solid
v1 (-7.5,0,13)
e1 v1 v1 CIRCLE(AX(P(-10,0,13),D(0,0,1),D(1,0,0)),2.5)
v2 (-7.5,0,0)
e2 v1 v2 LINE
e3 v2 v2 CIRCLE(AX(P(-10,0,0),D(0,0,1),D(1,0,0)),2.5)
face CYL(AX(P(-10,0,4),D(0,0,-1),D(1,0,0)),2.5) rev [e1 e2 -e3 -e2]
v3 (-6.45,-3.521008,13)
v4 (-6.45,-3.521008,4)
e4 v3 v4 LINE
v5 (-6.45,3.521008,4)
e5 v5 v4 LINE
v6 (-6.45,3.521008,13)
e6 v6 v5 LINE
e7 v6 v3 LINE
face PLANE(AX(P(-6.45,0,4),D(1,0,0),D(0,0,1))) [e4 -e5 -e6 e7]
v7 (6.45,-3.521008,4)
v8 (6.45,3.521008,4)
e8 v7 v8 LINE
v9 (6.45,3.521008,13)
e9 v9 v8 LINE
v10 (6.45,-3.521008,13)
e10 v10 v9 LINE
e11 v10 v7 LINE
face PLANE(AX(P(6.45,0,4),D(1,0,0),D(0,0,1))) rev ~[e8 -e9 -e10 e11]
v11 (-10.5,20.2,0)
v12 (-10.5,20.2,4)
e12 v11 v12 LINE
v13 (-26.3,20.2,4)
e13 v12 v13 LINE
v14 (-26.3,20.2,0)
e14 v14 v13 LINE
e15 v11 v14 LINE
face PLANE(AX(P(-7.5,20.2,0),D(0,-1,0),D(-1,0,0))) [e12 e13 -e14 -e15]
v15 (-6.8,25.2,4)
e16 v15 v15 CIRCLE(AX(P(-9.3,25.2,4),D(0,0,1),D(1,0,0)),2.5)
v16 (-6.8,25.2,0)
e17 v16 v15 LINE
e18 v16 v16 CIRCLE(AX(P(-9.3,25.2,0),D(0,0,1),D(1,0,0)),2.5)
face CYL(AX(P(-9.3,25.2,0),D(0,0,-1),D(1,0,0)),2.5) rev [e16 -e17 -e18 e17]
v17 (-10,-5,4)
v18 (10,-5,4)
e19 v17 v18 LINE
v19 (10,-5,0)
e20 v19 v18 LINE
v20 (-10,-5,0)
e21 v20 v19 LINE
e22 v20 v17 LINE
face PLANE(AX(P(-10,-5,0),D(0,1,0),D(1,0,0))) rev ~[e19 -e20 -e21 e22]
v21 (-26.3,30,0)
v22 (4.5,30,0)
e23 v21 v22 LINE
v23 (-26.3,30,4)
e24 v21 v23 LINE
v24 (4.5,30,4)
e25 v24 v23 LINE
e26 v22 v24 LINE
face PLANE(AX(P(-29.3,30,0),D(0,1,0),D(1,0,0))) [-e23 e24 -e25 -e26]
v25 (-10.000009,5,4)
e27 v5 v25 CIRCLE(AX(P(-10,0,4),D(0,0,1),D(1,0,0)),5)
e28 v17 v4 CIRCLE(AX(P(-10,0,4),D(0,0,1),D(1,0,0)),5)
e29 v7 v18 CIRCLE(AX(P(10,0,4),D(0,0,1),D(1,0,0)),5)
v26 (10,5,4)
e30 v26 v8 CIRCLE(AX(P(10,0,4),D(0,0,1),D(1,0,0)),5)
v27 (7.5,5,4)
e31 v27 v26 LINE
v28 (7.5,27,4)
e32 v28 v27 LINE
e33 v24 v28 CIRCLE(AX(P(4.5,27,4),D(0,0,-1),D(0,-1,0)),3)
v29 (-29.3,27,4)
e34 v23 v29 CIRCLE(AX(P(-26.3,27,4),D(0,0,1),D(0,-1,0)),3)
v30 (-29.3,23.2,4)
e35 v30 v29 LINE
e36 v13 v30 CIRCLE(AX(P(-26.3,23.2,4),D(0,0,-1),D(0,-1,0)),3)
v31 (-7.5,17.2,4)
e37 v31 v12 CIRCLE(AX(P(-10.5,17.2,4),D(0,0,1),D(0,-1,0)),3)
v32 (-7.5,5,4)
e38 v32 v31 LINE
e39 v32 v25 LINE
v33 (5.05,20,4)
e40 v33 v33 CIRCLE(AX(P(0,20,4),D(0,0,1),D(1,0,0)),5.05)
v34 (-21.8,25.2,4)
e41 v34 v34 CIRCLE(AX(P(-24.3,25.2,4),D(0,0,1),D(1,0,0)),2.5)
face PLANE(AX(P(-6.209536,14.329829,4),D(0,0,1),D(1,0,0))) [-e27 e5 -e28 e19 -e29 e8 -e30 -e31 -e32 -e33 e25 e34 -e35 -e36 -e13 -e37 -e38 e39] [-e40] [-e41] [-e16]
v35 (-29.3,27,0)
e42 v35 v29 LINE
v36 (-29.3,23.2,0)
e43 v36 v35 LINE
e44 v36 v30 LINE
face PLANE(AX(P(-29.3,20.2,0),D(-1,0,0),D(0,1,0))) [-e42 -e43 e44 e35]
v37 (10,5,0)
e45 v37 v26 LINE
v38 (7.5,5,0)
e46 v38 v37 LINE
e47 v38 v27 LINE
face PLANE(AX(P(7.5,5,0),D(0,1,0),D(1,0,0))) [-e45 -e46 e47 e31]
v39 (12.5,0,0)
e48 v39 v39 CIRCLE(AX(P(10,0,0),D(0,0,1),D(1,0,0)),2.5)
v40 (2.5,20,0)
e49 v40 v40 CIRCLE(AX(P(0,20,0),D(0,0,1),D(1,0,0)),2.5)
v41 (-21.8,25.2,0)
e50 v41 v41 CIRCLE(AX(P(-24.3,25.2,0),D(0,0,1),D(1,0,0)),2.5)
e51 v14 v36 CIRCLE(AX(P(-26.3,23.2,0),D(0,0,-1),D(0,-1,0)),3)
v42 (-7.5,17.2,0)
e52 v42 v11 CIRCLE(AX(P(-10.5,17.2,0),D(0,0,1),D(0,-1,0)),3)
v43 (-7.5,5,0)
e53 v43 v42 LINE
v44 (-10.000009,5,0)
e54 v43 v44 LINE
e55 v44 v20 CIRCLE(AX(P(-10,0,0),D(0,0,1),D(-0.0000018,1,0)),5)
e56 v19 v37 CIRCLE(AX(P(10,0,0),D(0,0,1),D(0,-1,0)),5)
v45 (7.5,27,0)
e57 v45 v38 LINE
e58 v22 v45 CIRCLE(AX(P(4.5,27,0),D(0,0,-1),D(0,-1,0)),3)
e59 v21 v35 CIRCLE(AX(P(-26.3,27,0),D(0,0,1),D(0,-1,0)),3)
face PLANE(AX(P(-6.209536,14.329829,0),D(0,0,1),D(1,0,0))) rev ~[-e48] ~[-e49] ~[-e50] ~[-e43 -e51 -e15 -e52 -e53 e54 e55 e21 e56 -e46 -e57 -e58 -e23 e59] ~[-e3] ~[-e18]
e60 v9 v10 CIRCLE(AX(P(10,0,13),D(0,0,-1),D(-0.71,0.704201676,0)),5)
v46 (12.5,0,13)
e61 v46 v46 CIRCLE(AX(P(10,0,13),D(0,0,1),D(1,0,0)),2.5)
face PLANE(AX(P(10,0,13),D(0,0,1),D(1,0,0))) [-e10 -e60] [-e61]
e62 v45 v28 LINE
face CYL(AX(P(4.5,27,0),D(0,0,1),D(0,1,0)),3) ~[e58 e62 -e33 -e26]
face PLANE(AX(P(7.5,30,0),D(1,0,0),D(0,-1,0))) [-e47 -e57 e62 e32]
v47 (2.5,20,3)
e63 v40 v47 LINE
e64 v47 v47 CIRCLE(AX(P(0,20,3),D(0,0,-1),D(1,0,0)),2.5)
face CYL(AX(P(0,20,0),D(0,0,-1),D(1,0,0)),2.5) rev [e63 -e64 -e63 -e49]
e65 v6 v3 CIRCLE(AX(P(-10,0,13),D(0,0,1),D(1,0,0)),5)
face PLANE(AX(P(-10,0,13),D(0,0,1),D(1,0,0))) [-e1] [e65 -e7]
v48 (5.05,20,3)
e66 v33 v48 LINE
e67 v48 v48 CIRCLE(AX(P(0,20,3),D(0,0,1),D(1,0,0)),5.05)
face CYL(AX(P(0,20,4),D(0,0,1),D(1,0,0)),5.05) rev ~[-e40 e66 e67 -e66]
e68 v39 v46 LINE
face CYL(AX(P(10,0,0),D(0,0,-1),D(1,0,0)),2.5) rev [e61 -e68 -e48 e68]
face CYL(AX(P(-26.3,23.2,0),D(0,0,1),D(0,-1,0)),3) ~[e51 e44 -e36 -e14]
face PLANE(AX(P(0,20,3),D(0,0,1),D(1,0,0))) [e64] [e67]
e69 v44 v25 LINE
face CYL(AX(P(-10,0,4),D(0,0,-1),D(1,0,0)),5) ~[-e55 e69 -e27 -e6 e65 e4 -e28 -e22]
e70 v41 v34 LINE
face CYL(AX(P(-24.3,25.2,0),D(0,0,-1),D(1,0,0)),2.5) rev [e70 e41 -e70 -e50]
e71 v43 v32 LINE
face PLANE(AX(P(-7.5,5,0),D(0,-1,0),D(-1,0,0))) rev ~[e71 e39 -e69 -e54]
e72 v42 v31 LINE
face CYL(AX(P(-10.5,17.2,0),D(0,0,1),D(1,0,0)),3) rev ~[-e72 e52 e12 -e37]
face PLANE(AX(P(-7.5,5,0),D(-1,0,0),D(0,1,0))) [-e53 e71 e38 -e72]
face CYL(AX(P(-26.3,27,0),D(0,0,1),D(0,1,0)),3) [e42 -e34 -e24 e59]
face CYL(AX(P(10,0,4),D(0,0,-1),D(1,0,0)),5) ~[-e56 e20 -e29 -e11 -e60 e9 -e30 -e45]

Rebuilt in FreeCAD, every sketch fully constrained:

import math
import FreeCAD as App
import Part
import Sketcher
from FreeCAD import Vector


def edges_at(feature, points):
    """Names of the edges that pass closest to the given points."""
    edges = feature.Shape.Edges
    near = lambda p: min(range(len(edges)), key=lambda i: edges[i].distToShape(Part.Vertex(*p))[0])
    return sorted({f"Edge{near(p) + 1}" for p in points})

doc = App.newDocument("Part")
body = doc.addObject("PartDesign::Body", "Body")

# Sketch on XY plane
sketch1 = doc.addObject("Sketcher::SketchObject", "Sketch")
body.addObject(sketch1)
sketch1.AttachmentSupport = (doc.XY_Plane, [""])
sketch1.MapMode = "FlatFace"
sketch1.addGeometry(Part.LineSegment(Vector(-10, -5, 0), Vector(10, -5, 0)), False)
sketch1.addGeometry(Part.ArcOfCircle(Part.Circle(Vector(10, 0, 0), Vector(0, 0, 1), 5), math.radians(-90), math.radians(90)), False)
sketch1.addGeometry(Part.LineSegment(Vector(10, 5, 0), Vector(7.5, 5, 0)), False)
sketch1.addGeometry(Part.LineSegment(Vector(7.5, 5, 0), Vector(7.5, 30, 0)), False)
sketch1.addGeometry(Part.LineSegment(Vector(7.5, 30, 0), Vector(-29.3, 30, 0)), False)
sketch1.addGeometry(Part.LineSegment(Vector(-29.3, 30, 0), Vector(-29.3, 20.2, 0)), False)
sketch1.addGeometry(Part.LineSegment(Vector(-29.3, 20.2, 0), Vector(-7.5, 20.2, 0)), False)
sketch1.addGeometry(Part.LineSegment(Vector(-7.5, 20.2, 0), Vector(-7.5, 5, 0)), False)
sketch1.addGeometry(Part.LineSegment(Vector(-7.5, 5, 0), Vector(-10, 5, 0)), False)
sketch1.addGeometry(Part.ArcOfCircle(Part.Circle(Vector(-10, 0, 0), Vector(0, 0, 1), 5), math.radians(90), math.radians(270)), False)
sketch1.addGeometry(Part.Circle(Vector(-10, 0, 0), Vector(0, 0, 1), 2.5), False)
sketch1.addGeometry(Part.Circle(Vector(10, 0, 0), Vector(0, 0, 1), 2.5), False)
sketch1.addGeometry(Part.Circle(Vector(-24.3, 25.2, 0), Vector(0, 0, 1), 2.5), False)
sketch1.addGeometry(Part.Circle(Vector(-9.3, 25.2, 0), Vector(0, 0, 1), 2.5), False)
sketch1.addGeometry(Part.Circle(Vector(0, 20, 0), Vector(0, 0, 1), 2.5), False)
sketch1.addConstraint(Sketcher.Constraint("Tangent", 0, 2, 1, 1))
sketch1.addConstraint(Sketcher.Constraint("Tangent", 1, 2, 2, 1))
sketch1.addConstraint(Sketcher.Constraint("Coincident", 2, 2, 3, 1))
sketch1.addConstraint(Sketcher.Constraint("Coincident", 3, 2, 4, 1))
sketch1.addConstraint(Sketcher.Constraint("Coincident", 4, 2, 5, 1))
sketch1.addConstraint(Sketcher.Constraint("Coincident", 5, 2, 6, 1))
sketch1.addConstraint(Sketcher.Constraint("Coincident", 6, 2, 7, 1))
sketch1.addConstraint(Sketcher.Constraint("Coincident", 7, 2, 8, 1))
sketch1.addConstraint(Sketcher.Constraint("Tangent", 8, 2, 9, 1))
sketch1.addConstraint(Sketcher.Constraint("Tangent", 9, 2, 0, 1))
sketch1.addConstraint(Sketcher.Constraint("Horizontal", 0))
sketch1.addConstraint(Sketcher.Constraint("Horizontal", 2))
sketch1.addConstraint(Sketcher.Constraint("Vertical", 3))
sketch1.addConstraint(Sketcher.Constraint("Horizontal", 4))
sketch1.addConstraint(Sketcher.Constraint("Vertical", 5))
sketch1.addConstraint(Sketcher.Constraint("Horizontal", 6))
sketch1.addConstraint(Sketcher.Constraint("Vertical", 7))
sketch1.addConstraint(Sketcher.Constraint("Horizontal", 8))
sketch1.addConstraint(Sketcher.Constraint("Coincident", 10, 3, 9, 3))
sketch1.addConstraint(Sketcher.Constraint("Coincident", 11, 3, 1, 3))
sketch1.addConstraint(Sketcher.Constraint("Equal", 1, 9))
sketch1.addConstraint(Sketcher.Constraint("Equal", 10, 11))
sketch1.addConstraint(Sketcher.Constraint("Equal", 11, 12))
sketch1.addConstraint(Sketcher.Constraint("Equal", 12, 13))
sketch1.addConstraint(Sketcher.Constraint("Equal", 13, 14))
sketch1.addConstraint(Sketcher.Constraint("Symmetric", 1, 3, 9, 3, -1, 1))
sketch1.addConstraint(Sketcher.Constraint("PointOnObject", 14, 3, -2))
sketch1.addConstraint(Sketcher.Constraint("Horizontal", 12, 3, 13, 3))
sketch1.addConstraint(Sketcher.Constraint("Diameter", 10, 5.0))
sketch1.addConstraint(Sketcher.Constraint("Radius", 1, 5.0))
sketch1.addConstraint(Sketcher.Constraint("DistanceX", 0, 1, 0, 2, 20.0))
sketch1.addConstraint(Sketcher.Constraint("DistanceY", 3, 1, 3, 2, 25.0))
sketch1.addConstraint(Sketcher.Constraint("DistanceX", 2, 2, 2, 1, 2.5))
sketch1.addConstraint(Sketcher.Constraint("DistanceX", 4, 2, 4, 1, 36.8))
sketch1.addConstraint(Sketcher.Constraint("DistanceX", 6, 1, 6, 2, 21.8))
sketch1.addConstraint(Sketcher.Constraint("DistanceY", 5, 2, 5, 1, 9.8))
sketch1.addConstraint(Sketcher.Constraint("DistanceY", -1, 1, 14, 3, 20.0))
sketch1.addConstraint(Sketcher.Constraint("DistanceX", 12, 3, 13, 3, 15.0))
sketch1.addConstraint(Sketcher.Constraint("DistanceX", 4, 2, 12, 3, 5.0))
sketch1.addConstraint(Sketcher.Constraint("DistanceY", 5, 2, 12, 3, 5.0))
pad1 = doc.addObject("PartDesign::Pad", "Pad")
body.addObject(pad1)
pad1.Profile = sketch1
pad1.Length = 4

# Sketch on XY plane
sketch2 = doc.addObject("Sketcher::SketchObject", "Sketch001")
body.addObject(sketch2)
sketch2.AttachmentSupport = (doc.XY_Plane, [""])
sketch2.MapMode = "FlatFace"
sketch2.AttachmentOffset = App.Placement(Vector(0, 0, 4), App.Rotation())
sketch2.addGeometry(Part.Circle(Vector(-10, 0, 0), Vector(0, 0, 1), 5), False)
sketch2.addGeometry(Part.Circle(Vector(-10, 0, 0), Vector(0, 0, 1), 2.5), False)
sketch2.addGeometry(Part.Circle(Vector(10, 0, 0), Vector(0, 0, 1), 5), False)
sketch2.addGeometry(Part.Circle(Vector(10, 0, 0), Vector(0, 0, 1), 2.5), False)
sketch2.addConstraint(Sketcher.Constraint("Coincident", 1, 3, 0, 3))
sketch2.addConstraint(Sketcher.Constraint("Coincident", 3, 3, 2, 3))
sketch2.addConstraint(Sketcher.Constraint("Equal", 0, 2))
sketch2.addConstraint(Sketcher.Constraint("Equal", 1, 3))
sketch2.addConstraint(Sketcher.Constraint("Symmetric", 0, 3, 2, 3, -1, 1))
sketch2.addConstraint(Sketcher.Constraint("PointOnObject", 0, 3, -1))
sketch2.addConstraint(Sketcher.Constraint("Diameter", 0, 10.0))
sketch2.addConstraint(Sketcher.Constraint("Diameter", 1, 5.0))
sketch2.addConstraint(Sketcher.Constraint("DistanceX", 0, 3, -1, 1, 10.0))
pad2 = doc.addObject("PartDesign::Pad", "Pad001")
body.addObject(pad2)
pad2.Profile = sketch2
pad2.Length = 9

# Sketch on XZ plane
sketch3 = doc.addObject("Sketcher::SketchObject", "Sketch002")
body.addObject(sketch3)
sketch3.AttachmentSupport = (doc.XZ_Plane, [""])
sketch3.MapMode = "FlatFace"
sketch3.addGeometry(Part.LineSegment(Vector(-6, 20, 0), Vector(-6, 4, 0)), False)
sketch3.addGeometry(Part.LineSegment(Vector(-6, 4, 0), Vector(6, 4, 0)), False)
sketch3.addGeometry(Part.LineSegment(Vector(6, 4, 0), Vector(6, 20, 0)), False)
sketch3.addGeometry(Part.LineSegment(Vector(6, 20, 0), Vector(-6, 20, 0)), False)
sketch3.addConstraint(Sketcher.Constraint("Coincident", 0, 2, 1, 1))
sketch3.addConstraint(Sketcher.Constraint("Coincident", 1, 2, 2, 1))
sketch3.addConstraint(Sketcher.Constraint("Coincident", 2, 2, 3, 1))
sketch3.addConstraint(Sketcher.Constraint("Coincident", 3, 2, 0, 1))
sketch3.addConstraint(Sketcher.Constraint("Vertical", 0))
sketch3.addConstraint(Sketcher.Constraint("Horizontal", 1))
sketch3.addConstraint(Sketcher.Constraint("Vertical", 2))
sketch3.addConstraint(Sketcher.Constraint("Horizontal", 3))
sketch3.addConstraint(Sketcher.Constraint("DistanceX", 1, 1, 1, 2, 12.9))
sketch3.addConstraint(Sketcher.Constraint("DistanceY", -1, 1, 0, 2, 4.0))
sketch3.addConstraint(Sketcher.Constraint("DistanceX", 0, 2, -1, 1, 6.45))
sketch3.addConstraint(Sketcher.Constraint("DistanceY", 0, 2, 0, 1, 16.151024))
pocket1 = doc.addObject("PartDesign::Pocket", "Pocket")
body.addObject(pocket1)
pocket1.Profile = sketch3
pocket1.Type = "ThroughAll"
pocket1.Midplane = True
doc.recompute()

fillet = doc.addObject("PartDesign::Fillet", "Fillet")
body.addObject(fillet)
fillet.Base = (pocket1, edges_at(pocket1, [
    (-29.3, 20.2, 2),
    (-29.3, 30, 2),
    (-7.5, 20.2, 2),
    (7.5, 30, 2),
]))
fillet.Radius = 3

# Sketch on XY plane
sketch4 = doc.addObject("Sketcher::SketchObject", "Sketch003")
body.addObject(sketch4)
sketch4.AttachmentSupport = (doc.XY_Plane, [""])
sketch4.MapMode = "FlatFace"
sketch4.AttachmentOffset = App.Placement(Vector(0, 0, 4), App.Rotation())
sketch4.addGeometry(Part.Circle(Vector(0, 20, 0), Vector(0, 0, 1), 5), False)
sketch4.addConstraint(Sketcher.Constraint("PointOnObject", 0, 3, -2))
sketch4.addConstraint(Sketcher.Constraint("Diameter", 0, 10.1))
sketch4.addConstraint(Sketcher.Constraint("DistanceY", -1, 1, 0, 3, 20.0))
pocket2 = doc.addObject("PartDesign::Pocket", "Pocket001")
body.addObject(pocket2)
pocket2.Profile = sketch4
pocket2.Length = 1

doc.recompute()
